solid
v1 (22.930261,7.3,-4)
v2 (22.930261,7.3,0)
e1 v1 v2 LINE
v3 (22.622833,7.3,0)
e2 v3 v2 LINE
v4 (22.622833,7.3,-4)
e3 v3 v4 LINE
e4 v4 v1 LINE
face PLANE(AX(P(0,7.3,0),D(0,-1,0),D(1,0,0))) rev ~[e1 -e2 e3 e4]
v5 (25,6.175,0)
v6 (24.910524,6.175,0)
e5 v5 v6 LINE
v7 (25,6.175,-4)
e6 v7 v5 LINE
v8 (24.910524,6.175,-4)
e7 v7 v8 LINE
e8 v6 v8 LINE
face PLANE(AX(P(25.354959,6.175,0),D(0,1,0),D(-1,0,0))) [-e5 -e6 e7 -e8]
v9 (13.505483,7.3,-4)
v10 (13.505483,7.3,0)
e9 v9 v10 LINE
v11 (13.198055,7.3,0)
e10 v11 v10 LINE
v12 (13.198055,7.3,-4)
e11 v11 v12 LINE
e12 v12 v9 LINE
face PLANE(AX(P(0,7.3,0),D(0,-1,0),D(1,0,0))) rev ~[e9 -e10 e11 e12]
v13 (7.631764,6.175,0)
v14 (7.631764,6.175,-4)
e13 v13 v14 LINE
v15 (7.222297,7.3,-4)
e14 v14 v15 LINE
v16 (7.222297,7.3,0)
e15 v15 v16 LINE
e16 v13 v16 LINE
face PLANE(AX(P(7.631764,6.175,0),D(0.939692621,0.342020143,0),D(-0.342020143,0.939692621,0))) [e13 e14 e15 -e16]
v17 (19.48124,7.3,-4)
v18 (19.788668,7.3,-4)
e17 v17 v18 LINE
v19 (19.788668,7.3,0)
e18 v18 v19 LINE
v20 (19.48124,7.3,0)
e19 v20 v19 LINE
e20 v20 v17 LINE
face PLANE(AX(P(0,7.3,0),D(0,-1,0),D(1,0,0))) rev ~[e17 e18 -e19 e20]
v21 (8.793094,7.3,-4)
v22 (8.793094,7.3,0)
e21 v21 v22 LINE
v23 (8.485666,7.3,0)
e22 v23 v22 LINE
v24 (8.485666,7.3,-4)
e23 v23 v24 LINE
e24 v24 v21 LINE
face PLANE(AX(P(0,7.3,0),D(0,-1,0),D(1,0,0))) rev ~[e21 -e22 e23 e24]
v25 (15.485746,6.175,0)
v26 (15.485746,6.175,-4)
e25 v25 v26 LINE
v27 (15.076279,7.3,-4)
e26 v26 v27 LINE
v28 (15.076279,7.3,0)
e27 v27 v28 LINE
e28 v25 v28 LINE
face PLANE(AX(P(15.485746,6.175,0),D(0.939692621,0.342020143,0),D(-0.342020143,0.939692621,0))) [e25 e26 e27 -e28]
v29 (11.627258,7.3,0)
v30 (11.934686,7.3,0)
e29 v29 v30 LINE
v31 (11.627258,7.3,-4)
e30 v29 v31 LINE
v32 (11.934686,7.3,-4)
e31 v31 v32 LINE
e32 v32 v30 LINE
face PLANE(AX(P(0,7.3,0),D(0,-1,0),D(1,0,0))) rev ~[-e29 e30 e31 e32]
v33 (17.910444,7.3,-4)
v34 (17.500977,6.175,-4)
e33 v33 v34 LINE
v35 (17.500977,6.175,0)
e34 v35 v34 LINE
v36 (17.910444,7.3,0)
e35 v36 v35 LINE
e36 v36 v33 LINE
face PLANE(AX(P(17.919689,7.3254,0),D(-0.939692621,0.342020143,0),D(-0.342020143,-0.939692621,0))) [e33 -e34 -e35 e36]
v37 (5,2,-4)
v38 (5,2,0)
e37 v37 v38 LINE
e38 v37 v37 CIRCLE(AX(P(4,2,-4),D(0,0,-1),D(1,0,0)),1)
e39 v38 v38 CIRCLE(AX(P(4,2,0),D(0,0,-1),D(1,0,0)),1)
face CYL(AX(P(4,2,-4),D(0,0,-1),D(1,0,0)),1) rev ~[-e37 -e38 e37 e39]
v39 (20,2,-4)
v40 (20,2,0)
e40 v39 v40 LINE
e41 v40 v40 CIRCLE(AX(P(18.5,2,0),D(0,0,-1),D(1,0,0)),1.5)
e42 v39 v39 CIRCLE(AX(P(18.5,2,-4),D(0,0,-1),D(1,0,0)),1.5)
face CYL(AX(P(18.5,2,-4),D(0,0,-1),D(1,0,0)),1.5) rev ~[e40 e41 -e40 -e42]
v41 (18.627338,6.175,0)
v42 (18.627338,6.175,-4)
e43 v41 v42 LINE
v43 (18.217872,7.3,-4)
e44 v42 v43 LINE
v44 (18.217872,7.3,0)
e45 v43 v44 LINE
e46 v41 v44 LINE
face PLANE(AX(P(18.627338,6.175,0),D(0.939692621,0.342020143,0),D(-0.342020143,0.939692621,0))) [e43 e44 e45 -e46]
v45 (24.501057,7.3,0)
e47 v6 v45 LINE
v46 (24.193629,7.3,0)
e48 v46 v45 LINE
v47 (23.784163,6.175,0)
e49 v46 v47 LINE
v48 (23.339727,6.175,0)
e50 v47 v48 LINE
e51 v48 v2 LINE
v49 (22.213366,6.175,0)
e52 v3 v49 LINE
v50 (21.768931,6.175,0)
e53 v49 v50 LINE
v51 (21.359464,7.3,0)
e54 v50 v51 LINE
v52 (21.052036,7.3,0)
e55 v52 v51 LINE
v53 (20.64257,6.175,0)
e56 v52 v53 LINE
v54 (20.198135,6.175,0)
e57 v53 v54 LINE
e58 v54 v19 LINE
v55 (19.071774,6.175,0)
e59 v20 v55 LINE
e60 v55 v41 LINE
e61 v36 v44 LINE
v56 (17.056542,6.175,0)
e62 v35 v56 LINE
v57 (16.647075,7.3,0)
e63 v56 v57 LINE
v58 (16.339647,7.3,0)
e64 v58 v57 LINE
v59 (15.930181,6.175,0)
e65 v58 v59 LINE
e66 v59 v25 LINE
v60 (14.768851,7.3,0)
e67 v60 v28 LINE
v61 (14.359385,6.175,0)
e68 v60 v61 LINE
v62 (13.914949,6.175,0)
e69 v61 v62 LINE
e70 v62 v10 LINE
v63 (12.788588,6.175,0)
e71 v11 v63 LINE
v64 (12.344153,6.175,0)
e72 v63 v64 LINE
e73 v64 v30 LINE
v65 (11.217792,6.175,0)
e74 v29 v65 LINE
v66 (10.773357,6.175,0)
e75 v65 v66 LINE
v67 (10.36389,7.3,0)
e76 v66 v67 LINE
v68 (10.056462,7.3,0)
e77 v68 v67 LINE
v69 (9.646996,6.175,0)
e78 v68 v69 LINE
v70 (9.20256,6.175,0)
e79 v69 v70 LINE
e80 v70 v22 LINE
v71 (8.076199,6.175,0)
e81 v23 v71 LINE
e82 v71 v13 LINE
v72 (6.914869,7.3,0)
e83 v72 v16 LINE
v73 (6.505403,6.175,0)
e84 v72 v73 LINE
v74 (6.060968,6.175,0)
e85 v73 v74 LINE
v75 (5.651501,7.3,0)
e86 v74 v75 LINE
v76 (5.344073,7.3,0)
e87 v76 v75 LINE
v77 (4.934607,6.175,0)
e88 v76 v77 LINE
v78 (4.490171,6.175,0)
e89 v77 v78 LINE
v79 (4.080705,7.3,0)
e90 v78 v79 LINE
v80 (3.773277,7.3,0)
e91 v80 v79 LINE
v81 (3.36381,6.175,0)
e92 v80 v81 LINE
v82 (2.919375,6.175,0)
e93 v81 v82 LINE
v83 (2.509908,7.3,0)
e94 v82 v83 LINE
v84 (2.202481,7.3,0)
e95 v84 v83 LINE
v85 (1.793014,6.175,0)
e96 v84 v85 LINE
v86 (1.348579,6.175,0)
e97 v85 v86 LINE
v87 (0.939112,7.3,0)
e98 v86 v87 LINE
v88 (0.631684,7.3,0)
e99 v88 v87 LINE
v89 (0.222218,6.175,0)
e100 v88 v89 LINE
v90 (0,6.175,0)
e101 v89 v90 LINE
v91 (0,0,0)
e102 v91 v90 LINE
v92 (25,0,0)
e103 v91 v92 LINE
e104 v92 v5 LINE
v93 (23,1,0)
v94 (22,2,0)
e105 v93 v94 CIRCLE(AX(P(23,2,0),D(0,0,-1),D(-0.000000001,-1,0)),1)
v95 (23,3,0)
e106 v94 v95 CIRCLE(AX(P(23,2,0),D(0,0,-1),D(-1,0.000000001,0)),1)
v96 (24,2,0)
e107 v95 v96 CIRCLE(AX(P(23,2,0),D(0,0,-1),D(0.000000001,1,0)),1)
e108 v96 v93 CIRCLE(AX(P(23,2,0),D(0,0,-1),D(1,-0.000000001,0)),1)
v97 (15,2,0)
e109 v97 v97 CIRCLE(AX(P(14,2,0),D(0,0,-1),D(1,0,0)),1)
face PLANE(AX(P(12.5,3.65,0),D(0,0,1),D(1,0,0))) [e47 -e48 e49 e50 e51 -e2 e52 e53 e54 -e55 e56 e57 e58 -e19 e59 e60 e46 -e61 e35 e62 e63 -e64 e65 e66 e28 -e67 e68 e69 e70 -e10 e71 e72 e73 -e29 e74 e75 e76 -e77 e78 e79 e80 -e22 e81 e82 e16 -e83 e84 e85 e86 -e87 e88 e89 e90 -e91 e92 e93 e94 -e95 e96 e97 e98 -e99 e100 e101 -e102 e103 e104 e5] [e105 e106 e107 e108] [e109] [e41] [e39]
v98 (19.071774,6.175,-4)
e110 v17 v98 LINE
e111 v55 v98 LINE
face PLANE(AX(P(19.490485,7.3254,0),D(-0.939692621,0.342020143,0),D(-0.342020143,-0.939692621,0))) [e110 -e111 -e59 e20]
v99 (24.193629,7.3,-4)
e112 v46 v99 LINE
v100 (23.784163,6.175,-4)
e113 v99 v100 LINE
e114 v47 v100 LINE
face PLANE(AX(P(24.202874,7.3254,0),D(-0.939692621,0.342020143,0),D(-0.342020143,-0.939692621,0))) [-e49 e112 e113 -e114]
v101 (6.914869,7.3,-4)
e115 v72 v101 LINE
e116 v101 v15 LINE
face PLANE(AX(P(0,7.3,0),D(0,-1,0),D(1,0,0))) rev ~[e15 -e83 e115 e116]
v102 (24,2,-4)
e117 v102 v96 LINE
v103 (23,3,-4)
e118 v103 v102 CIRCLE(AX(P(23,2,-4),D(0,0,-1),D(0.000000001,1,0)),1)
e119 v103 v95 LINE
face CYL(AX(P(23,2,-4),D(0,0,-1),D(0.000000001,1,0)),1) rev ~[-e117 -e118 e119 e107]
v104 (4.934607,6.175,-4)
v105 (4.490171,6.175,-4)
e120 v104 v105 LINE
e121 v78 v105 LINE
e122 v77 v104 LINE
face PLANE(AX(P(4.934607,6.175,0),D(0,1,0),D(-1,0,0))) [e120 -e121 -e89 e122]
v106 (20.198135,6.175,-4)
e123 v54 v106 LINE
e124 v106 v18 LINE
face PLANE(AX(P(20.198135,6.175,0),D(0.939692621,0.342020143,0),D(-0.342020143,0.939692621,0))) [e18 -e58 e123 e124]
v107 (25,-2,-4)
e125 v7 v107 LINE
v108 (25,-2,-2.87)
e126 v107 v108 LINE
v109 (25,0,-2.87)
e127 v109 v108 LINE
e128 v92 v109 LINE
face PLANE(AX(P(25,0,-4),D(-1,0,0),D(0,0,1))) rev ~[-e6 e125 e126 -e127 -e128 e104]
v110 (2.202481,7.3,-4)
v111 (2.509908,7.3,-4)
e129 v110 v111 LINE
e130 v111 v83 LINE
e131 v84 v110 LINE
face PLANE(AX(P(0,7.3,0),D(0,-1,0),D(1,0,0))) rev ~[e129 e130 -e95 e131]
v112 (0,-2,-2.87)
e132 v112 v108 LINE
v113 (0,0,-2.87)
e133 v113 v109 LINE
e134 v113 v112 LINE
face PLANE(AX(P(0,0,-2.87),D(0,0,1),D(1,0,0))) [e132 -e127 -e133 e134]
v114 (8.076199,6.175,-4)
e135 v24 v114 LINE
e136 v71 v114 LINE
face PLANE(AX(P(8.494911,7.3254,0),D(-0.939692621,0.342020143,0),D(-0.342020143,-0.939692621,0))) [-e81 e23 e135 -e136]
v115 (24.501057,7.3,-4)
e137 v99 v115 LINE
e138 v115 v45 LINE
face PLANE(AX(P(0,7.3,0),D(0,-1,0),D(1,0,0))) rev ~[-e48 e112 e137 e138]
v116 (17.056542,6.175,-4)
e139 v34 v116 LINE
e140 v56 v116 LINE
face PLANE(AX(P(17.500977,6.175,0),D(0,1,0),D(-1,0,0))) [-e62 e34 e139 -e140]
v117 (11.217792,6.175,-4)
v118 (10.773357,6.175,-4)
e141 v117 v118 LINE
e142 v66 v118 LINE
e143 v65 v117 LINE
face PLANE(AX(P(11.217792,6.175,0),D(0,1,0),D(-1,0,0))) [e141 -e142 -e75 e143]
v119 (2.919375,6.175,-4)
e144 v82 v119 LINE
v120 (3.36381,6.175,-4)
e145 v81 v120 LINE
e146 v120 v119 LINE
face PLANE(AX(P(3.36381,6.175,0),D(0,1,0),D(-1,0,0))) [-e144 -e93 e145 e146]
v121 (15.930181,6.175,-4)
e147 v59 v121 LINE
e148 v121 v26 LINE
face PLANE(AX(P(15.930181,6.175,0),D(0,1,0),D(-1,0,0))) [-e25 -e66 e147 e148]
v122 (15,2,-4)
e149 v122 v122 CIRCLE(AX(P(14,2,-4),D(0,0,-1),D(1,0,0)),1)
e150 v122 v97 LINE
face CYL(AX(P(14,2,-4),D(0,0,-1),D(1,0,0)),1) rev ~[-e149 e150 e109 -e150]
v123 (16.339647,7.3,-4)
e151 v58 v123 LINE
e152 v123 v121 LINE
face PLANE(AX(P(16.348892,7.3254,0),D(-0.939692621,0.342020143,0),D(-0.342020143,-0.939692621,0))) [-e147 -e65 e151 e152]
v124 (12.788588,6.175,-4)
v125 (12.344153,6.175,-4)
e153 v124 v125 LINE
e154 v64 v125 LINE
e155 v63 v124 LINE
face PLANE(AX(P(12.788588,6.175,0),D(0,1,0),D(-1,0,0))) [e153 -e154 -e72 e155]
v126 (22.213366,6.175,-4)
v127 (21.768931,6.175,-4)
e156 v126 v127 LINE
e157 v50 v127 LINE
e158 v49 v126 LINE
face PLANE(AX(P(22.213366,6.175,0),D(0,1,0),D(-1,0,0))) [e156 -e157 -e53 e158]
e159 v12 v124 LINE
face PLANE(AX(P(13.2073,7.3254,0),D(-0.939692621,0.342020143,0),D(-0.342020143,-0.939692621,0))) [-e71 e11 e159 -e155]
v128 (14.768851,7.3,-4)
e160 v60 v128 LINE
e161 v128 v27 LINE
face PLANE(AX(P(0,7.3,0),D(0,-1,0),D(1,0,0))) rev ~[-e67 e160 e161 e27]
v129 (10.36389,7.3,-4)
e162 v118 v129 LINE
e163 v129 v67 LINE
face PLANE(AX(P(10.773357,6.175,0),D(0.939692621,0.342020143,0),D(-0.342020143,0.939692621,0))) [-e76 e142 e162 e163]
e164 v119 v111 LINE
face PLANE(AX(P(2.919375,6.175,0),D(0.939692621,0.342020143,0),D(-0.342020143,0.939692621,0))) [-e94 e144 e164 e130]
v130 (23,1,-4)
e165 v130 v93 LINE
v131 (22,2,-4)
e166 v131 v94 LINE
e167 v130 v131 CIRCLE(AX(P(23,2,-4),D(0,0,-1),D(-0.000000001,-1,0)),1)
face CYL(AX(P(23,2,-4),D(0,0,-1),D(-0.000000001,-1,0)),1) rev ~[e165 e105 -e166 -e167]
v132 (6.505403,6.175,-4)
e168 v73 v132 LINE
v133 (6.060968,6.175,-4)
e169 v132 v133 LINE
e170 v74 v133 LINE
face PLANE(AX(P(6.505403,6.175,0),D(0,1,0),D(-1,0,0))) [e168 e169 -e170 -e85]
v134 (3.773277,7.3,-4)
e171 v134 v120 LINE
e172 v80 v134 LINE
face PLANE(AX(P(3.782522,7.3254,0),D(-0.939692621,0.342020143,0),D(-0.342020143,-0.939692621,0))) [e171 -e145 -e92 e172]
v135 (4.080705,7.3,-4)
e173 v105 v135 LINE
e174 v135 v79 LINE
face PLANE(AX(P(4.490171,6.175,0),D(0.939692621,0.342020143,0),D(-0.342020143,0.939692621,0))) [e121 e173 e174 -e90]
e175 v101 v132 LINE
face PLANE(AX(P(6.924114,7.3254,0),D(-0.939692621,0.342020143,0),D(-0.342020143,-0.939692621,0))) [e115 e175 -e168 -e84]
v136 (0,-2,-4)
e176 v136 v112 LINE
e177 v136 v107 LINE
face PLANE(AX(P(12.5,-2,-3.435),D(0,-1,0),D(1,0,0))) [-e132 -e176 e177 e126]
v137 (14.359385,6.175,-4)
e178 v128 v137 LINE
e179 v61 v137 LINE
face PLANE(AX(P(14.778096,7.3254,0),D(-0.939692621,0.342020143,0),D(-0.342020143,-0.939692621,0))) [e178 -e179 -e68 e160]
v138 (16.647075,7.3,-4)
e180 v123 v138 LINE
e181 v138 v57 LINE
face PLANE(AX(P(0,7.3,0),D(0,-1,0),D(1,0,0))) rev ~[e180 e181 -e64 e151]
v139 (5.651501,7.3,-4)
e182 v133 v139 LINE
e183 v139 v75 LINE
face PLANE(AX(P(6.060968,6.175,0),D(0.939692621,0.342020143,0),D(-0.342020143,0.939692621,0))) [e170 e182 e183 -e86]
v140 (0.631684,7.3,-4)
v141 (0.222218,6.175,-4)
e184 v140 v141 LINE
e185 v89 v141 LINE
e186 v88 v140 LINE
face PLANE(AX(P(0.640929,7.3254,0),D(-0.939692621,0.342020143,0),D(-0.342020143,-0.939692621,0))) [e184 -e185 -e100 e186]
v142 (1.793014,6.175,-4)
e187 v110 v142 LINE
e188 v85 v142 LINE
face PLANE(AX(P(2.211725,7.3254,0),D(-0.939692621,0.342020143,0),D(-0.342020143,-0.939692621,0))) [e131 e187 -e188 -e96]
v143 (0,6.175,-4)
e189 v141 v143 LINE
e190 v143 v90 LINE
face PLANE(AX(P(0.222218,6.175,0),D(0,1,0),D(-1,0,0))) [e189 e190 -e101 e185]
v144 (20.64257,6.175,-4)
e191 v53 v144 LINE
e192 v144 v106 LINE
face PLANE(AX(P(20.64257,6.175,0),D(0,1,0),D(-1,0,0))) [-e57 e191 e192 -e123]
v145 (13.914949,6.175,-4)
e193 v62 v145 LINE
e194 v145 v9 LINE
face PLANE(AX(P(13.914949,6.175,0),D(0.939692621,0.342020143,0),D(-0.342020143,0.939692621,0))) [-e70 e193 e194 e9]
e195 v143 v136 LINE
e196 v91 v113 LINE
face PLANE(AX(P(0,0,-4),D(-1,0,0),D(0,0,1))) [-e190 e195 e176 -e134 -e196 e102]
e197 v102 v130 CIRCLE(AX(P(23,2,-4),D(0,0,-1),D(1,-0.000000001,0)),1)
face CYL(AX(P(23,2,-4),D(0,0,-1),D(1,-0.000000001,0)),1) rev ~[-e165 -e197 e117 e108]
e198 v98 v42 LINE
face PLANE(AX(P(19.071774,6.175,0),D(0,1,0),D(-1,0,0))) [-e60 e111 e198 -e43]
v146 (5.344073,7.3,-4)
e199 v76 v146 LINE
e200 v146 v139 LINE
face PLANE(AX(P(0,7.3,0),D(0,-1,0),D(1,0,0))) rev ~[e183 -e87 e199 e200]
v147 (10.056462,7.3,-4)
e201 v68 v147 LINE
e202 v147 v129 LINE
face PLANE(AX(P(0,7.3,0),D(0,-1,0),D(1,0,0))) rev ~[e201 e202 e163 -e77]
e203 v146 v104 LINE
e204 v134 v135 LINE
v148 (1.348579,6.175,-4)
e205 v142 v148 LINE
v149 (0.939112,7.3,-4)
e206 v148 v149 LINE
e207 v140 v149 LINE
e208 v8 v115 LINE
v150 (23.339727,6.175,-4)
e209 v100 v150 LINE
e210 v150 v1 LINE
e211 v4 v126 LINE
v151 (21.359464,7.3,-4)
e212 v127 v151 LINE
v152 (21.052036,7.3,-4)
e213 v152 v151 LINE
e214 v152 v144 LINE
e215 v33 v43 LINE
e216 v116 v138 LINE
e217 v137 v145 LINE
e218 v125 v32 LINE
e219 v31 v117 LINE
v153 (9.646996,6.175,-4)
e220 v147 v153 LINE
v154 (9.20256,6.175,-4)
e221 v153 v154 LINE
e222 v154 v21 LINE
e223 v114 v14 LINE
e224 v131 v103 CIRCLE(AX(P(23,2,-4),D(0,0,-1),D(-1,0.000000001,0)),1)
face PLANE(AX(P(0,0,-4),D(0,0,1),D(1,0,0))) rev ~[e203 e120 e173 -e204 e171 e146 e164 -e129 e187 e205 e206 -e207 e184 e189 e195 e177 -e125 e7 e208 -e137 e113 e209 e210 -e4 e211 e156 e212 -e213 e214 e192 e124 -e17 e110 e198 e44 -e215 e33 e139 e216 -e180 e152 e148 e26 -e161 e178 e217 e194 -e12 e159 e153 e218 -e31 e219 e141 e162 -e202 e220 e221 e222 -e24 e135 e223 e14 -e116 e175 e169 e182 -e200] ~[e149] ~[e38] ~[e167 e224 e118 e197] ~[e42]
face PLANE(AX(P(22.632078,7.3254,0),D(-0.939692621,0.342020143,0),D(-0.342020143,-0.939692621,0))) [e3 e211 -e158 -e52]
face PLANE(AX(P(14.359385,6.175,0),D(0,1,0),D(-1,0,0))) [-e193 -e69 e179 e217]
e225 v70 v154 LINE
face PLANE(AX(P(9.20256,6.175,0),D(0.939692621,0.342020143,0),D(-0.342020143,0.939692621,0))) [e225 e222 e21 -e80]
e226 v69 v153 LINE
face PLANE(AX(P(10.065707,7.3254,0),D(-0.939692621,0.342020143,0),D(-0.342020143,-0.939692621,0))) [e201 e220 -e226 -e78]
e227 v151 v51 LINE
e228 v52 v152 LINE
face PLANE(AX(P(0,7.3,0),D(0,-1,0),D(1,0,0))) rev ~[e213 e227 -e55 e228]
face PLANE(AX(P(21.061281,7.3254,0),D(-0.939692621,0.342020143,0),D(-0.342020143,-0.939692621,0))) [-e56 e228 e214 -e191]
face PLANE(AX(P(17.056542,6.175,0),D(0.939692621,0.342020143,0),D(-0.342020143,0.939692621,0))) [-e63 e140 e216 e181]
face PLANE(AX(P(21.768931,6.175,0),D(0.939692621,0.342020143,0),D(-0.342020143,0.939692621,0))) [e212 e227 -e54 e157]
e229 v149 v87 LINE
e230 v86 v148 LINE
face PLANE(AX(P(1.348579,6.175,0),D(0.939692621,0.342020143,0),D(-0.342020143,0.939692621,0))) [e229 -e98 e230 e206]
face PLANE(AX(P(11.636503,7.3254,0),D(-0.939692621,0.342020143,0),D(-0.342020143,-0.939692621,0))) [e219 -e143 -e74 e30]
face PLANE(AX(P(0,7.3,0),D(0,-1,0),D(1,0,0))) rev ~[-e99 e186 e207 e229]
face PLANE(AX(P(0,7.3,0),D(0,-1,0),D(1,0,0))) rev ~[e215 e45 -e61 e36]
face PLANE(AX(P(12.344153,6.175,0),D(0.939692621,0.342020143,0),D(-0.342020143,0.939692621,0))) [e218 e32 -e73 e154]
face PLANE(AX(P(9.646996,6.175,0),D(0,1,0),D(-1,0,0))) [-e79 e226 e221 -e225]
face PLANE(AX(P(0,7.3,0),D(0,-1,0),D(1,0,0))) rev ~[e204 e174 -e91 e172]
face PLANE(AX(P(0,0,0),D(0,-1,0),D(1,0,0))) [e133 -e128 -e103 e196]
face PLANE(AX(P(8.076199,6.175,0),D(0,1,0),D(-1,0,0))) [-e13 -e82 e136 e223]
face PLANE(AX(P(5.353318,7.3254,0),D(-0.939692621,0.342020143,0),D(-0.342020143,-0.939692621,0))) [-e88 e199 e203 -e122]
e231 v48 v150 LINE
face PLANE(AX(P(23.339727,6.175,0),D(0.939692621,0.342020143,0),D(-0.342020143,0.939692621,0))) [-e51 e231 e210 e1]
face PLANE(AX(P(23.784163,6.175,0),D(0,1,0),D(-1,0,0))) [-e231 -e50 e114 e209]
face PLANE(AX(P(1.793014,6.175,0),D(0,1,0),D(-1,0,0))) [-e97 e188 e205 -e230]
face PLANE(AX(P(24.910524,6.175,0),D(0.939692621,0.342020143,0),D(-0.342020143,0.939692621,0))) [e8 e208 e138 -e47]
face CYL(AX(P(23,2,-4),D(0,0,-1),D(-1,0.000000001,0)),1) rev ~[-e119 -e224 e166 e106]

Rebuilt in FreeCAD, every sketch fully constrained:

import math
import FreeCAD as App
import Part
import Sketcher
from FreeCAD import Vector
Q = App.Units.Quantity

doc = App.newDocument("Part")
body = doc.addObject("PartDesign::Body", "Body")

# Sketch on XY plane
sketch1 = doc.addObject("Sketcher::SketchObject", "Sketch")
body.addObject(sketch1)
sketch1.AttachmentSupport = (doc.XY_Plane, [""])
sketch1.MapMode = "FlatFace"
sketch1.addGeometry([
    Part.LineSegment(Vector(0, 7.3, 0), Vector(0, 0, 0)),
    Part.LineSegment(Vector(0, 0, 0), Vector(25, 0, 0)),
    Part.LineSegment(Vector(25, 0, 0), Vector(25, 7.3, 0)),
    Part.LineSegment(Vector(25, 7.3, 0), Vector(0, 7.3, 0)),
], False)
sketch1.addConstraint([
    Sketcher.Constraint("Coincident", 0, 2, 1, 1),
    Sketcher.Constraint("Coincident", 1, 2, 2, 1),
    Sketcher.Constraint("Coincident", 2, 2, 3, 1),
    Sketcher.Constraint("Coincident", 3, 2, 0, 1),
    Sketcher.Constraint("Vertical", 0),
    Sketcher.Constraint("Horizontal", 1),
    Sketcher.Constraint("Vertical", 2),
    Sketcher.Constraint("Horizontal", 3),
    Sketcher.Constraint("Coincident", 0, 2, -1, 1),
    Sketcher.Constraint("DistanceX", 1, 1, 1, 2, 25.0),
    Sketcher.Constraint("DistanceY", 0, 2, 0, 1, 7.3),
])
pad1 = doc.addObject("PartDesign::Pad", "Pad")
body.addObject(pad1)
pad1.Profile = sketch1
pad1.Length = 4
pad1.Reversed = True

# Sketch on XY plane
sketch2 = doc.addObject("Sketcher::SketchObject", "Sketch001")
body.addObject(sketch2)
sketch2.AttachmentSupport = (doc.XY_Plane, [""])
sketch2.MapMode = "FlatFace"
sketch2.addGeometry([
    Part.LineSegment(Vector(-0.222218, 6.175, 0), Vector(0.222218, 6.175, 0)),
    Part.LineSegment(Vector(0.222218, 6.175, 0), Vector(0.640929, 7.3254, 0)),
    Part.LineSegment(Vector(0.640929, 7.3254, 0), Vector(-0.640929, 7.3254, 0)),
    Part.LineSegment(Vector(-0.640929, 7.3254, 0), Vector(-0.222218, 6.175, 0)),
], False)
sketch2.addConstraint([
    Sketcher.Constraint("Coincident", 0, 2, 1, 1),
    Sketcher.Constraint("Coincident", 1, 2, 2, 1),
    Sketcher.Constraint("Coincident", 2, 2, 3, 1),
    Sketcher.Constraint("Coincident", 3, 2, 0, 1),
    Sketcher.Constraint("Horizontal", 0),
    Sketcher.Constraint("Horizontal", 2),
    Sketcher.Constraint("Equal", 1, 3),
    Sketcher.Constraint("Angle", 1, Q("70 deg")),
    Sketcher.Constraint("DistanceY", -1, 1, 0, 2, 6.175),
    Sketcher.Constraint("DistanceX", 2, 2, 2, 1, 1.281858),
    Sketcher.Constraint("DistanceY", -1, 1, 1, 2, 7.3254),
    Sketcher.Constraint("DistanceX", -1, 1, 1, 2, 0.640929),
])
pocket1 = doc.addObject("PartDesign::Pocket", "Pocket")
body.addObject(pocket1)
pocket1.Profile = sketch2
pocket1.Type = "ThroughAll"
doc.recompute()

linearpattern = doc.addObject("PartDesign::LinearPattern", "LinearPattern")
body.addObject(linearpattern)
linearpattern.Originals = [pocket1]
linearpattern.Direction = (doc.X_Axis, [""])
linearpattern.Mode = "offset"
linearpattern.Offset = 1.570796
linearpattern.Occurrences = 17
body.Tip = linearpattern

# Sketch on XY plane
sketch3 = doc.addObject("Sketcher::SketchObject", "Sketch002")
body.addObject(sketch3)
sketch3.AttachmentSupport = (doc.XY_Plane, [""])
sketch3.MapMode = "FlatFace"
sketch3.AttachmentOffset = App.Placement(Vector(0, 0, -4), App.Rotation())
sketch3.addGeometry([
    Part.ArcOfCircle(Part.Circle(Vector(23, 2, 0), Vector(0, 0, 1), 1), math.radians(-180), math.radians(-90)),  # 0
    Part.ArcOfCircle(Part.Circle(Vector(23, 2, 0), Vector(0, 0, 1), 1), math.radians(90), math.radians(180)),  # 1
    Part.ArcOfCircle(Part.Circle(Vector(23, 2, 0), Vector(0, 0, 1), 1), math.radians(0), math.radians(90)),  # 2
    Part.ArcOfCircle(Part.Circle(Vector(23, 2, 0), Vector(0, 0, 1), 1), math.radians(-90), math.radians(0)),  # 3
    Part.Circle(Vector(18.5, 2, 0), Vector(0, 0, 1), 1.5),  # 4
    Part.Circle(Vector(14, 2, 0), Vector(0, 0, 1), 1),  # 5
    Part.Circle(Vector(4, 2, 0), Vector(0, 0, 1), 1),  # 6
], False)
sketch3.addConstraint([
    Sketcher.Constraint("Tangent", 0, 1, 1, 2),
    Sketcher.Constraint("Tangent", 1, 1, 2, 2),
    Sketcher.Constraint("Tangent", 2, 1, 3, 2),
    Sketcher.Constraint("Tangent", 3, 1, 0, 2),
    Sketcher.Constraint("Equal", 0, 1),
    Sketcher.Constraint("Equal", 3, 5),
    Sketcher.Constraint("Equal", 5, 6),
    Sketcher.Constraint("Horizontal", 3, 3, 4, 3),
    Sketcher.Constraint("Horizontal", 4, 3, 5, 3),
    Sketcher.Constraint("Horizontal", 5, 3, 6, 3),
    Sketcher.Constraint("Horizontal", 6, 3, 0, 1),
    Sketcher.Constraint("Horizontal", 0, 1, 2, 1),
    Sketcher.Constraint("Vertical", 3, 3, 1, 1),
    Sketcher.Constraint("Vertical", 1, 1, 3, 1),
    Sketcher.Constraint("Diameter", 4, 3.0),
    Sketcher.Constraint("Diameter", 5, 2.0),
    Sketcher.Constraint("DistanceX", -1, 1, 0, 3, 23.0),
    Sketcher.Constraint("DistanceY", -1, 1, 0, 3, 2.0),
    Sketcher.Constraint("DistanceX", -1, 1, 5, 3, 14.0),
    Sketcher.Constraint("DistanceX", -1, 1, 6, 3, 4.0),
    Sketcher.Constraint("DistanceX", -1, 1, 4, 3, 18.5),
])
pocket2 = doc.addObject("PartDesign::Pocket", "Pocket001")
body.addObject(pocket2)
pocket2.Profile = sketch3
pocket2.Type = "ThroughAll"
pocket2.Reversed = True

# Sketch on XZ plane
sketch4 = doc.addObject("Sketcher::SketchObject", "Sketch003")
body.addObject(sketch4)
sketch4.AttachmentSupport = (doc.XZ_Plane, [""])
sketch4.MapMode = "FlatFace"
sketch4.addGeometry([
    Part.LineSegment(Vector(0, -2.87, 0), Vector(0, -4, 0)),
    Part.LineSegment(Vector(0, -4, 0), Vector(25, -4, 0)),
    Part.LineSegment(Vector(25, -4, 0), Vector(25, -2.87, 0)),
    Part.LineSegment(Vector(25, -2.87, 0), Vector(0, -2.87, 0)),
], False)
sketch4.addConstraint([
    Sketcher.Constraint("Coincident", 0, 2, 1, 1),
    Sketcher.Constraint("Coincident", 1, 2, 2, 1),
    Sketcher.Constraint("Coincident", 2, 2, 3, 1),
    Sketcher.Constraint("Coincident", 3, 2, 0, 1),
    Sketcher.Constraint("Vertical", 0),
    Sketcher.Constraint("Horizontal", 1),
    Sketcher.Constraint("Vertical", 2),
    Sketcher.Constraint("Horizontal", 3),
    Sketcher.Constraint("PointOnObject", 0, 2, -2),
    Sketcher.Constraint("DistanceX", 1, 1, 1, 2, 25.0),
    Sketcher.Constraint("DistanceY", 0, 2, -1, 1, 4.0),
    Sketcher.Constraint("DistanceY", 0, 2, 0, 1, 1.13),
])
pad2 = doc.addObject("PartDesign::Pad", "Pad001")
body.addObject(pad2)
pad2.Profile = sketch4
pad2.Length = 2

doc.recompute()
